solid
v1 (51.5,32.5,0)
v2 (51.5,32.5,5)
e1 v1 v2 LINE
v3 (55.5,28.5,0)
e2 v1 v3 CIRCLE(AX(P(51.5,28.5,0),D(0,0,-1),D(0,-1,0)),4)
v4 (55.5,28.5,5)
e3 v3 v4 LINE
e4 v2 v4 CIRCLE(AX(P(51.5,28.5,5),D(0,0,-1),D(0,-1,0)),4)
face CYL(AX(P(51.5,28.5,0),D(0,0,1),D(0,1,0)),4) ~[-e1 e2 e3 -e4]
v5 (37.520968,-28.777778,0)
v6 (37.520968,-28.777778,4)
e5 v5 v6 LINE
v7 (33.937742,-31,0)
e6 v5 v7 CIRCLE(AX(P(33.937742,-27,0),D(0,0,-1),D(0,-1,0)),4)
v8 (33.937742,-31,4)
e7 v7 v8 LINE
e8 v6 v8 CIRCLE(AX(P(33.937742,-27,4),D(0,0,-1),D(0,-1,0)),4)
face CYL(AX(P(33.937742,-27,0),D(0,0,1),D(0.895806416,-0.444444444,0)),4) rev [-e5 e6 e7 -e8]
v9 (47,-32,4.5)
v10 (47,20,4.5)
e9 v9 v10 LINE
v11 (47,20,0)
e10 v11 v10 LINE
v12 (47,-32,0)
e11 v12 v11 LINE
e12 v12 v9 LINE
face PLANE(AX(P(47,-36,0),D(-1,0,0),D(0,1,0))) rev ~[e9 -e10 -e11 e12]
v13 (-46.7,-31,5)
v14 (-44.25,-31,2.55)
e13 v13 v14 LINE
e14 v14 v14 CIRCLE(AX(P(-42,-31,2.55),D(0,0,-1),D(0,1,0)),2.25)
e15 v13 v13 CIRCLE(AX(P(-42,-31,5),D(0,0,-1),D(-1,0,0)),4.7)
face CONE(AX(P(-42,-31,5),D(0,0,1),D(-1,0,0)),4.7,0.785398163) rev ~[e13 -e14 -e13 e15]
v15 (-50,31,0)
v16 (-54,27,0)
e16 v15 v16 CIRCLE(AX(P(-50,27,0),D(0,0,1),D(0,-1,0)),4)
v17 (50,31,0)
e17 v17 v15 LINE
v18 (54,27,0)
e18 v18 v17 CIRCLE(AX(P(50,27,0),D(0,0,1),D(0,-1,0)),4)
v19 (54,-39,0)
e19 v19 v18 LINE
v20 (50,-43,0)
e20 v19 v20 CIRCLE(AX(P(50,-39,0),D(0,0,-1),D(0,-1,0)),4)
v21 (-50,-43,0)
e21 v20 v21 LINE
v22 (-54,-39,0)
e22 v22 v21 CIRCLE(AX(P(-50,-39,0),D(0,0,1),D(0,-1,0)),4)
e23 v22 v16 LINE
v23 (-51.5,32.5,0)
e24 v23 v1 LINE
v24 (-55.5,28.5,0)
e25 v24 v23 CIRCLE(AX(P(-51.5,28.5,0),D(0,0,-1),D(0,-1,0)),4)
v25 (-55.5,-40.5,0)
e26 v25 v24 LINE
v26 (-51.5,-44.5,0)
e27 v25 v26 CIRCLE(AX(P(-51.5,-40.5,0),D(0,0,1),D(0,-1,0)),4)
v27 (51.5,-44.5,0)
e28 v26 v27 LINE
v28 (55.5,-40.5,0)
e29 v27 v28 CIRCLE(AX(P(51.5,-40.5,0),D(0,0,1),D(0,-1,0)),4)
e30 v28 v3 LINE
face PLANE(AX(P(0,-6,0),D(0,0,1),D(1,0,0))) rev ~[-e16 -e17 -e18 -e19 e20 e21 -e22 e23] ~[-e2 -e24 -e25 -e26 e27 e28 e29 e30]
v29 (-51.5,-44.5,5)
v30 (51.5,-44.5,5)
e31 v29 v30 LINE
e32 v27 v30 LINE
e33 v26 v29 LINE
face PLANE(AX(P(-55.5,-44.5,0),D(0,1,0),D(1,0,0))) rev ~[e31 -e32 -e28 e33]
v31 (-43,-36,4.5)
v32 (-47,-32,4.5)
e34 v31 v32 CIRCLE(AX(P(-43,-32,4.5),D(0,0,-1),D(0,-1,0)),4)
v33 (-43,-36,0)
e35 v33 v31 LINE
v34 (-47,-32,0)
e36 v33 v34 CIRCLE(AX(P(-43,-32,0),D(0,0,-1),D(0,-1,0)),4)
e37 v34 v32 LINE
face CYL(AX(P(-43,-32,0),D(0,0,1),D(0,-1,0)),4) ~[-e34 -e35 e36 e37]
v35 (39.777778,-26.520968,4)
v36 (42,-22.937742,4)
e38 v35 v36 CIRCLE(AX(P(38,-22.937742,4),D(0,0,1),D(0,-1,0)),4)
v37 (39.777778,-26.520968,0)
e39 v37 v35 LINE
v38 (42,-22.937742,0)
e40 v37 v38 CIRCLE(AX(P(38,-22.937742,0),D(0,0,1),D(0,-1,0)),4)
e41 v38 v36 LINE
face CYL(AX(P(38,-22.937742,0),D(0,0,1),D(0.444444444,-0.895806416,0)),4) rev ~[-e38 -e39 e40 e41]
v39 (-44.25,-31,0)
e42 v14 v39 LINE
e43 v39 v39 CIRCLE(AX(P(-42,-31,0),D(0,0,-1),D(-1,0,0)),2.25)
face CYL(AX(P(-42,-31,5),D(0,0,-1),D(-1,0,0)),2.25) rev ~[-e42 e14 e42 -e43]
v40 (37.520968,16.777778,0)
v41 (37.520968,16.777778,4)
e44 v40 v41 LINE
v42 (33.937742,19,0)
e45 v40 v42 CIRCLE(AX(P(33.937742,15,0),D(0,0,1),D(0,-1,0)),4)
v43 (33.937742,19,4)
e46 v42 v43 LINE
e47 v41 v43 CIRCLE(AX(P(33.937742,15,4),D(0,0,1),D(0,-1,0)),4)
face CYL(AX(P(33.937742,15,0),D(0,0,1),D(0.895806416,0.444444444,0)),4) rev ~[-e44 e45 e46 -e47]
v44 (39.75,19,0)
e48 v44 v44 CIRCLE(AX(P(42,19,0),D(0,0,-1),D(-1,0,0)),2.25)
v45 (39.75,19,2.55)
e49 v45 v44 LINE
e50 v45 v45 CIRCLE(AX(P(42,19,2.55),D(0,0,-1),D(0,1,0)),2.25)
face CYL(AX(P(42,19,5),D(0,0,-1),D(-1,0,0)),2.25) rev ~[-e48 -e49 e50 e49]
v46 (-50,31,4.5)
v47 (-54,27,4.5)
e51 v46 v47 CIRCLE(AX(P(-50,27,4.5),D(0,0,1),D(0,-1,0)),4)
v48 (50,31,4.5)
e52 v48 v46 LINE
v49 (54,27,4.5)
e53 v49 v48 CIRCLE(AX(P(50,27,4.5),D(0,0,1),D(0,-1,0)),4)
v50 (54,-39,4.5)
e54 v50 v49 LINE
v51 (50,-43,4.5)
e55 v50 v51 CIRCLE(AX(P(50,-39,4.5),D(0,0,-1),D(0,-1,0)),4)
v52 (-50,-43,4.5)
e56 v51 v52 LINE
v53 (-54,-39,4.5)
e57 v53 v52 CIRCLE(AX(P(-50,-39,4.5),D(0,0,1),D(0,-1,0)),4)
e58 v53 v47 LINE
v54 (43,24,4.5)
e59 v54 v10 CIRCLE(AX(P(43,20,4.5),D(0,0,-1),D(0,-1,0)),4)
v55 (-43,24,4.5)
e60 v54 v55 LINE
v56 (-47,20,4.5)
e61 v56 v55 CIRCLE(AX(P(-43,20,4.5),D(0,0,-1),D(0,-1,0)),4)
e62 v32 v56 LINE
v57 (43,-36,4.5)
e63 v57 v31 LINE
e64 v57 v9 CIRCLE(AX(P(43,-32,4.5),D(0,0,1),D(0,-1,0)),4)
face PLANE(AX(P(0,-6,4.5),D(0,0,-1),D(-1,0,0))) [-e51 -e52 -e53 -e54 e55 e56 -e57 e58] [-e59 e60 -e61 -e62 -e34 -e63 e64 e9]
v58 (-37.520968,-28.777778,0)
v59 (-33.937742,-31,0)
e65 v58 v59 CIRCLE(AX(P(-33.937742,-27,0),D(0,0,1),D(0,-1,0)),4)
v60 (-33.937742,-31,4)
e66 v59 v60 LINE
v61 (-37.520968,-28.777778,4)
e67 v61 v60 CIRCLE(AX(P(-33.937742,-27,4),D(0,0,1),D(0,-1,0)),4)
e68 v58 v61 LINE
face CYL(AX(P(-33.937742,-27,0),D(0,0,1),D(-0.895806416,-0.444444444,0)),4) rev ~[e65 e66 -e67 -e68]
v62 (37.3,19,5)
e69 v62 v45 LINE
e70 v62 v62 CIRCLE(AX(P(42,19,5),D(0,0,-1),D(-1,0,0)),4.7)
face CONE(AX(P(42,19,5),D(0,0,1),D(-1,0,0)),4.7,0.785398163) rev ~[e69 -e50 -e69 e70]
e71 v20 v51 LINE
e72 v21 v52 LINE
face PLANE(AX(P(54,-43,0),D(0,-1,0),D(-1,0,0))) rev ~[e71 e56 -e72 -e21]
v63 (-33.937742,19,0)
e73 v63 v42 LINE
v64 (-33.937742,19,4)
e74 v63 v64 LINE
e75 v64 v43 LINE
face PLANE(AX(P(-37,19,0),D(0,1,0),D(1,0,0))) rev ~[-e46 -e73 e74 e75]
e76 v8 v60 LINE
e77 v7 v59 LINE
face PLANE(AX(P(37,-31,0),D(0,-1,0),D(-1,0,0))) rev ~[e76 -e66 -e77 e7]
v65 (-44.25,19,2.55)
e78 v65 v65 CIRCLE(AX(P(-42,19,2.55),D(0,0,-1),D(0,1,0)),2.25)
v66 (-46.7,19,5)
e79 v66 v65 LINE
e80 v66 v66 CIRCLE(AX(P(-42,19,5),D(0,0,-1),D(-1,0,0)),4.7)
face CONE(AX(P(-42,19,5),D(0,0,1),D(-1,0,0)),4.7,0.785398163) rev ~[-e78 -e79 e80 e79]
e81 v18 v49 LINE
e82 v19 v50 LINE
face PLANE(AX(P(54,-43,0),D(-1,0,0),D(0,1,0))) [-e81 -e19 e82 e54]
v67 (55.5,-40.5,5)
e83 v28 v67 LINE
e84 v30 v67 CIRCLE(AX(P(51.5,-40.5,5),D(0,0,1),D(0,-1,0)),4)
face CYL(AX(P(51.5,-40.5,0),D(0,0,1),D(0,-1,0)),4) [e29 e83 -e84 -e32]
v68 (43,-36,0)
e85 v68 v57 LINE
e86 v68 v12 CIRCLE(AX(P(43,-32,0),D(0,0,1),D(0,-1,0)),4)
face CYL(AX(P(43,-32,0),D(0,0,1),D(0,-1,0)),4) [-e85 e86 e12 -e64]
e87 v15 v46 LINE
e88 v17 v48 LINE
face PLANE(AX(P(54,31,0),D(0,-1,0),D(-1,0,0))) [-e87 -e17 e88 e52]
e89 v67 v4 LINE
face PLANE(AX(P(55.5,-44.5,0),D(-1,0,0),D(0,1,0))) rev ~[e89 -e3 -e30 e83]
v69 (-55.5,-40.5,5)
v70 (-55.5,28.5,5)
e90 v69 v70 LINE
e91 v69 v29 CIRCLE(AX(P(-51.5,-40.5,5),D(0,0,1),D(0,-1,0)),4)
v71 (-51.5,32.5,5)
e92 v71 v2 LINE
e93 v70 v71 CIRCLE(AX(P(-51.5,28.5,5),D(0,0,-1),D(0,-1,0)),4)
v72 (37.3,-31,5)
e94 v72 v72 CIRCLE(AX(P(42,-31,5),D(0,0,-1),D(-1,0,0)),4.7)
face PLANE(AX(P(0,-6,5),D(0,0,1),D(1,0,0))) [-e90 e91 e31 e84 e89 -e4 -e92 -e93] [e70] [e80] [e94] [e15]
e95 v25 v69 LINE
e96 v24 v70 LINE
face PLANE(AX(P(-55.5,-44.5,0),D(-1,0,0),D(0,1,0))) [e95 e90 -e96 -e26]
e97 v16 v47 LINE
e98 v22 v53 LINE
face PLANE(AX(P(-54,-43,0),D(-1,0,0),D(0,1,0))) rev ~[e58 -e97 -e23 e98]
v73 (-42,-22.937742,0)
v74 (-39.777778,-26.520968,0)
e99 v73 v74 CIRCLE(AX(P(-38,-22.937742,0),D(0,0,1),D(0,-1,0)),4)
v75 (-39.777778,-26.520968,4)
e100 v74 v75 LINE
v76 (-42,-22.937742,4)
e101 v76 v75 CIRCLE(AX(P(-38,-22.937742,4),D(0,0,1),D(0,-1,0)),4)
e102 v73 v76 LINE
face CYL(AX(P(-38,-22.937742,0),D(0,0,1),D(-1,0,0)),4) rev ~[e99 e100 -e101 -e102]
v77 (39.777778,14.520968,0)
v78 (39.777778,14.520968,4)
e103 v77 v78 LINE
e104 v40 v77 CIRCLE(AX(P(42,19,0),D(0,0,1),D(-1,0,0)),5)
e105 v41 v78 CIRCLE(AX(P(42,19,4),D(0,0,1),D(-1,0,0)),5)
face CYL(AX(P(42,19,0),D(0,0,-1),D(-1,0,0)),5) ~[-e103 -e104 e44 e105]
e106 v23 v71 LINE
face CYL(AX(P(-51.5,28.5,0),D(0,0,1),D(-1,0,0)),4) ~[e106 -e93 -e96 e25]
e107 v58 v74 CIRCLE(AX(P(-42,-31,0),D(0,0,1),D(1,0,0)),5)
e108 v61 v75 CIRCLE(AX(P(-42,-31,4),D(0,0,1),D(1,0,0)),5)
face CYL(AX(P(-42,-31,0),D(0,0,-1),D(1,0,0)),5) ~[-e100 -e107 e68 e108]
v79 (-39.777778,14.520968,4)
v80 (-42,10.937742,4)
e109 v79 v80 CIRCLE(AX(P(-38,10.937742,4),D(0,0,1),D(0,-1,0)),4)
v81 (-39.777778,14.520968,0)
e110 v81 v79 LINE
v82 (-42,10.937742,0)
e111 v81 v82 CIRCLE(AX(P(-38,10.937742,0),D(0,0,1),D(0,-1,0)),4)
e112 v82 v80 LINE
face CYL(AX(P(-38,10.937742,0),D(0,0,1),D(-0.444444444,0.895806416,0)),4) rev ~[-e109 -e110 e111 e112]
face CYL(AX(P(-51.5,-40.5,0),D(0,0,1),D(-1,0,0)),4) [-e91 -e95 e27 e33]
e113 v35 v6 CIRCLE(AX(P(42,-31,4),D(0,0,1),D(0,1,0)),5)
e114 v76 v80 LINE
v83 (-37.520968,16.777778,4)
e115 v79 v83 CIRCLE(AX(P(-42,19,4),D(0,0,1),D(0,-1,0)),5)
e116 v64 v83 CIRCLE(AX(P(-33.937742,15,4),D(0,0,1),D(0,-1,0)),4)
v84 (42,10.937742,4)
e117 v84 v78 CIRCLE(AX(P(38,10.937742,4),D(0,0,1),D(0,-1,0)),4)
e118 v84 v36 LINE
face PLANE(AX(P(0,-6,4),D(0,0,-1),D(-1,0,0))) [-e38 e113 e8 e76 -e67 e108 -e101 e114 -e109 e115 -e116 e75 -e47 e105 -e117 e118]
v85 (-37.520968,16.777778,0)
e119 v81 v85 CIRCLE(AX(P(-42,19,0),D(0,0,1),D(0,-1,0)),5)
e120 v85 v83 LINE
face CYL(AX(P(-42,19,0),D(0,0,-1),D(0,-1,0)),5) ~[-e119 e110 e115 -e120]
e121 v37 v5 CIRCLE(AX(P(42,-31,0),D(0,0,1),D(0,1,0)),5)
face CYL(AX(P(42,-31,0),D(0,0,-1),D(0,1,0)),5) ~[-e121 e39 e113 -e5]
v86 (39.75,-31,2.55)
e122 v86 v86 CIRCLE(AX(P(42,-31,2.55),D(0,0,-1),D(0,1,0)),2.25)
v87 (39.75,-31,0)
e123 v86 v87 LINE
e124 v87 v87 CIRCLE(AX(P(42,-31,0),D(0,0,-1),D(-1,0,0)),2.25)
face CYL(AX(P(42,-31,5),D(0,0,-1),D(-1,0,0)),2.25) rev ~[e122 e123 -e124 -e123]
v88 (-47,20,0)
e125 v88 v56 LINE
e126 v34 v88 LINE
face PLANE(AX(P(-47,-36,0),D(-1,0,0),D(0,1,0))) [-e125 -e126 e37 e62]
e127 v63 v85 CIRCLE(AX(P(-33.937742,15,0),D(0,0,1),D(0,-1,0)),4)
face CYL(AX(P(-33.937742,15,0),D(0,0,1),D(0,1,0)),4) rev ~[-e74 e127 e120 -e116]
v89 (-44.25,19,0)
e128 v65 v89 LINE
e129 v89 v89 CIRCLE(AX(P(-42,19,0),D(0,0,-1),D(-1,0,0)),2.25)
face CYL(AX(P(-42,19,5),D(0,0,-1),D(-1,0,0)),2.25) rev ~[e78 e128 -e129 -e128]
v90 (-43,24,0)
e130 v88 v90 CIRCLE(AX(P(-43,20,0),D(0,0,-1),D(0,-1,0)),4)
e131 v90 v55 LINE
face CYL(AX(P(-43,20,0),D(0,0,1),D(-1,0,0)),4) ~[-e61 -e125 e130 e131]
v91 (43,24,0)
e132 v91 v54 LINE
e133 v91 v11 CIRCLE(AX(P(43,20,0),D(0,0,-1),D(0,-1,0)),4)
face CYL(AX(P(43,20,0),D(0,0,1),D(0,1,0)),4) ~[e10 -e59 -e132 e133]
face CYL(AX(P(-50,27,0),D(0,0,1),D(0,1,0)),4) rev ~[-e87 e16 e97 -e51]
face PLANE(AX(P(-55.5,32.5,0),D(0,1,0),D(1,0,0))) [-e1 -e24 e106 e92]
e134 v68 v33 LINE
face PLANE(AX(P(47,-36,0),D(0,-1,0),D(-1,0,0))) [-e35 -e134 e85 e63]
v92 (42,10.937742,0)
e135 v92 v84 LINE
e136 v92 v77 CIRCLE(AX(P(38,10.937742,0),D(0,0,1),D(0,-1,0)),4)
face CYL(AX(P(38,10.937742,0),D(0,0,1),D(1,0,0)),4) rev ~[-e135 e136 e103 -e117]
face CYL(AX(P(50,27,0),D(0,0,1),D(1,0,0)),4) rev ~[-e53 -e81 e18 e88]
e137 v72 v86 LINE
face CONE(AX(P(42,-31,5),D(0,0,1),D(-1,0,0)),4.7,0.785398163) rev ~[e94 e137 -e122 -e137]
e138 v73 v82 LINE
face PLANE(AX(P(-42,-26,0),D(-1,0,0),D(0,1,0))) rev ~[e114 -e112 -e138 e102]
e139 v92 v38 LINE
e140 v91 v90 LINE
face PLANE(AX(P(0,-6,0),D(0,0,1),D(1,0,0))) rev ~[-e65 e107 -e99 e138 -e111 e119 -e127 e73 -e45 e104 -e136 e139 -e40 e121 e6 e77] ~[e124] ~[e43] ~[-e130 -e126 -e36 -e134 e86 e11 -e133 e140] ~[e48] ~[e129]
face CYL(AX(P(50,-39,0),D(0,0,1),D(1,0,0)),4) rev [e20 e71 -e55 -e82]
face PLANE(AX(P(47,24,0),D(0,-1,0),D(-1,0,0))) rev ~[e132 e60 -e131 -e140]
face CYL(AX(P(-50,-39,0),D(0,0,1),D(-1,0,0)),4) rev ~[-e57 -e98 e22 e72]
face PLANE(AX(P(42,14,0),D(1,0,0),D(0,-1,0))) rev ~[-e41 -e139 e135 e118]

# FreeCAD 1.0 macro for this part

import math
import FreeCAD as App
import Part
import Sketcher


def edges_at(feature, points):
    """Names of the edges that pass closest to the given points."""
    edges = feature.Shape.Edges
    near = lambda p: min(range(len(edges)), key=lambda i: edges[i].distToShape(Part.Vertex(*p))[0])
    return sorted({f"Edge{near(p) + 1}" for p in points})

doc = App.newDocument("Part")
body = doc.addObject("PartDesign::Body", "Body")

sketch1 = body.newObject("Sketcher::SketchObject", "Sketch")
sketch1.AttachmentSupport = (doc.getObject("XY_Plane"), [""])
sketch1.MapMode = "FlatFace"
sketch1.addGeometry([
    Part.LineSegment(App.Vector(-55.5, 32.5, 0), App.Vector(-55.5, -44.5, 0)),
    Part.LineSegment(App.Vector(-55.5, -44.5, 0), App.Vector(55.5, -44.5, 0)),
    Part.LineSegment(App.Vector(55.5, -44.5, 0), App.Vector(55.5, 32.5, 0)),
    Part.LineSegment(App.Vector(55.5, 32.5, 0), App.Vector(-55.5, 32.5, 0)),
    Part.Circle(App.Vector(-42, -31, 0), App.Vector(0, 0, 1), 2),
    Part.Circle(App.Vector(42, -31, 0), App.Vector(0, 0, 1), 2),
    Part.Circle(App.Vector(-42, 19, 0), App.Vector(0, 0, 1), 2),
    Part.Circle(App.Vector(42, 19, 0), App.Vector(0, 0, 1), 2),
], False)
sketch1.addConstraint([
    Sketcher.Constraint("Coincident", 0, 2, 1, 1),
    Sketcher.Constraint("Coincident", 1, 2, 2, 1),
    Sketcher.Constraint("Coincident", 2, 2, 3, 1),
    Sketcher.Constraint("Coincident", 3, 2, 0, 1),
    Sketcher.Constraint("Vertical", 0),
    Sketcher.Constraint("Horizontal", 1),
    Sketcher.Constraint("Vertical", 2),
    Sketcher.Constraint("Horizontal", 3),
    Sketcher.Constraint("Equal", 4, 5),
    Sketcher.Constraint("Equal", 5, 6),
    Sketcher.Constraint("Equal", 6, 7),
    Sketcher.Constraint("Symmetric", 4, 3, 5, 3, -2),
    Sketcher.Constraint("Symmetric", 6, 3, 7, 3, -2),
    Sketcher.Constraint("Vertical", 4, 3, 6, 3),
    Sketcher.Constraint("Diameter", 4, 4.0),
    Sketcher.Constraint("DistanceX", 1, 1, 1, 2, 111.0),
    Sketcher.Constraint("DistanceY", 0, 2, 0, 1, 77.0),
    Sketcher.Constraint("DistanceX", 4, 3, -1, 1, 42.0),
    Sketcher.Constraint("DistanceY", 4, 3, -1, 1, 31.0),
    Sketcher.Constraint("DistanceY", -1, 1, 6, 3, 19.0),
    Sketcher.Constraint("DistanceX", 0, 2, -1, 1, 55.5),
    Sketcher.Constraint("DistanceY", 0, 2, -1, 1, 44.5),
])
pad1 = body.newObject("PartDesign::Pad", "Pad")
pad1.Profile = sketch1
pad1.Length = 5

sketch2 = body.newObject("Sketcher::SketchObject", "Sketch001")
sketch2.AttachmentSupport = (doc.getObject("XY_Plane"), [""])
sketch2.MapMode = "FlatFace"
sketch2.addGeometry([
    Part.LineSegment(App.Vector(54, 31, 0), App.Vector(54, -43, 0)),
    Part.LineSegment(App.Vector(54, -43, 0), App.Vector(-54, -43, 0)),
    Part.LineSegment(App.Vector(-54, -43, 0), App.Vector(-54, 31, 0)),
    Part.LineSegment(App.Vector(-54, 31, 0), App.Vector(54, 31, 0)),
    Part.LineSegment(App.Vector(-47, -36, 0), App.Vector(47, -36, 0)),
    Part.LineSegment(App.Vector(47, -36, 0), App.Vector(47, 24, 0)),
    Part.LineSegment(App.Vector(47, 24, 0), App.Vector(-47, 24, 0)),
    Part.LineSegment(App.Vector(-47, 24, 0), App.Vector(-47, -36, 0)),
], False)
sketch2.addConstraint([
    Sketcher.Constraint("Coincident", 0, 2, 1, 1),
    Sketcher.Constraint("Coincident", 1, 2, 2, 1),
    Sketcher.Constraint("Coincident", 2, 2, 3, 1),
    Sketcher.Constraint("Coincident", 3, 2, 0, 1),
    Sketcher.Constraint("Coincident", 4, 2, 5, 1),
    Sketcher.Constraint("Coincident", 5, 2, 6, 1),
    Sketcher.Constraint("Coincident", 6, 2, 7, 1),
    Sketcher.Constraint("Coincident", 7, 2, 4, 1),
    Sketcher.Constraint("Vertical", 0),
    Sketcher.Constraint("Horizontal", 1),
    Sketcher.Constraint("Vertical", 2),
    Sketcher.Constraint("Horizontal", 3),
    Sketcher.Constraint("Horizontal", 4),
    Sketcher.Constraint("Vertical", 5),
    Sketcher.Constraint("Horizontal", 6),
    Sketcher.Constraint("Vertical", 7),
    Sketcher.Constraint("DistanceX", 1, 2, 1, 1, 108.0),
    Sketcher.Constraint("DistanceX", 4, 1, 4, 2, 94.0),
    Sketcher.Constraint("DistanceY", 0, 2, 0, 1, 74.0),
    Sketcher.Constraint("DistanceY", 5, 1, 5, 2, 60.0),
    Sketcher.Constraint("DistanceX", -1, 1, 0, 2, 54.0),
    Sketcher.Constraint("DistanceY", 0, 2, -1, 1, 43.0),
    Sketcher.Constraint("DistanceX", -1, 1, 4, 2, 47.0),
    Sketcher.Constraint("DistanceY", 4, 2, -1, 1, 36.0),
])
pocket1 = body.newObject("PartDesign::Pocket", "Pocket")
pocket1.Profile = sketch2
pocket1.Length = 4.5
pocket1.Reversed = True

sketch3 = body.newObject("Sketcher::SketchObject", "Sketch002")
sketch3.AttachmentSupport = (doc.getObject("XY_Plane"), [""])
sketch3.MapMode = "FlatFace"
sketch3.addGeometry([
    Part.LineSegment(App.Vector(37, -31, 0), App.Vector(-37, -31, 0)),
    Part.ArcOfCircle(Part.Circle(App.Vector(-42, -31, 0), App.Vector(0, 0, 1), 5), math.radians(0), math.radians(90)),
    Part.LineSegment(App.Vector(-42, -26, 0), App.Vector(-42, 14, 0)),
    Part.ArcOfCircle(Part.Circle(App.Vector(-42, 19, 0), App.Vector(0, 0, 1), 5), math.radians(-90), math.radians(0)),
    Part.LineSegment(App.Vector(-37, 19, 0), App.Vector(37, 19, 0)),
    Part.ArcOfCircle(Part.Circle(App.Vector(42, 19, 0), App.Vector(0, 0, 1), 5), math.radians(180), math.radians(270)),
    Part.LineSegment(App.Vector(42, 14, 0), App.Vector(42, -26, 0)),
    Part.ArcOfCircle(Part.Circle(App.Vector(42, -31, 0), App.Vector(0, 0, 1), 5), math.radians(90), math.radians(180)),
], False)
sketch3.addConstraint([
    Sketcher.Constraint("Coincident", 0, 2, 1, 1),
    Sketcher.Constraint("Coincident", 1, 2, 2, 1),
    Sketcher.Constraint("Coincident", 2, 2, 3, 1),
    Sketcher.Constraint("Coincident", 3, 2, 4, 1),
    Sketcher.Constraint("Coincident", 4, 2, 5, 1),
    Sketcher.Constraint("Coincident", 5, 2, 6, 1),
    Sketcher.Constraint("Coincident", 6, 2, 7, 1),
    Sketcher.Constraint("Coincident", 7, 2, 0, 1),
    Sketcher.Constraint("Horizontal", 0),
    Sketcher.Constraint("Vertical", 2),
    Sketcher.Constraint("Horizontal", 4),
    Sketcher.Constraint("Vertical", 6),
    Sketcher.Constraint("Equal", 1, 3),
    Sketcher.Constraint("Equal", 3, 5),
    Sketcher.Constraint("Equal", 5, 7),
    Sketcher.Constraint("Symmetric", 3, 3, 5, 3, -2),
    Sketcher.Constraint("Symmetric", 1, 3, 7, 3, -2),
    Sketcher.Constraint("Horizontal", 7, 3, 0, 2),
    Sketcher.Constraint("Horizontal", 5, 3, 3, 2),
    Sketcher.Constraint("Vertical", 1, 3, 3, 3),
    Sketcher.Constraint("Vertical", 3, 3, 1, 2),
    Sketcher.Constraint("Vertical", 7, 3, 5, 2),
    Sketcher.Constraint("Radius", 1, 5.0),
    Sketcher.Constraint("DistanceX", 0, 2, 0, 1, 74.0),
    Sketcher.Constraint("DistanceY", 2, 1, 2, 2, 40.0),
    Sketcher.Constraint("DistanceY", 1, 3, -1, 1, 31.0),
])
pocket2 = body.newObject("PartDesign::Pocket", "Pocket001")
pocket2.Profile = sketch3
pocket2.Length = 4
pocket2.Reversed = True
doc.recompute()

fillet = body.newObject("PartDesign::Fillet", "Fillet")
fillet.Base = (pocket2, edges_at(pocket2, [
    (-54, -43, 2.25),
    (54, -43, 2.25),
    (54, 31, 2.25),
    (-54, 31, 2.25),
    (47, -36, 2.25),
    (47, 24, 2.25),
    (-47, 24, 2.25),
    (-47, -36, 2.25),
    (-37, 19, 2),
    (-42, 14, 2),
    (-42, -26, 2),
    (-37, -31, 2),
    (37, -31, 2),
    (42, -26, 2),
    (42, 14, 2),
    (37, 19, 2),
    (-55.5, -44.5, 2.5),
    (-55.5, 32.5, 2.5),
    (55.5, 32.5, 2.5),
    (55.5, -44.5, 2.5),
]))
fillet.Radius = 4

sketch4 = body.newObject("Sketcher::SketchObject", "Sketch003")
sketch4.AttachmentSupport = (doc.getObject("XY_Plane"), [""])
sketch4.MapMode = "FlatFace"
sketch4.AttachmentOffset = App.Placement(App.Vector(0, 0, 5), App.Rotation())
sketch4.addGeometry([
    Part.Circle(App.Vector(-42, 19, 0), App.Vector(0, 0, 1), 2.25),
    Part.Circle(App.Vector(-42, -31, 0), App.Vector(0, 0, 1), 2.25),
    Part.Circle(App.Vector(42, -31, 0), App.Vector(0, 0, 1), 2.25),
    Part.Circle(App.Vector(42, 19, 0), App.Vector(0, 0, 1), 2.25),
], False)
sketch4.addConstraint([
    Sketcher.Constraint("Equal", 0, 1),
    Sketcher.Constraint("Equal", 1, 2),
    Sketcher.Constraint("Equal", 2, 3),
    Sketcher.Constraint("Symmetric", 1, 3, 2, 3, -2),
    Sketcher.Constraint("Symmetric", 0, 3, 3, 3, -2),
    Sketcher.Constraint("Vertical", 0, 3, 1, 3),
    Sketcher.Constraint("Diameter", 0, 4.5),
    Sketcher.Constraint("DistanceX", 0, 3, -1, 1, 42.0),
    Sketcher.Constraint("DistanceY", -1, 1, 0, 3, 19.0),
    Sketcher.Constraint("DistanceY", 1, 3, -1, 1, 31.0),
])
doc.recompute()
hole = body.newObject("PartDesign::Hole", "Hole")
hole.Profile = sketch4
hole.ThreadType = "None"
hole.Diameter = 4.5
hole.DepthType = "ThroughAll"
hole.HoleCutType = "Countersink"
hole.HoleCutDiameter = 9.4
hole.HoleCutCountersinkAngle = 90

doc.recompute()
